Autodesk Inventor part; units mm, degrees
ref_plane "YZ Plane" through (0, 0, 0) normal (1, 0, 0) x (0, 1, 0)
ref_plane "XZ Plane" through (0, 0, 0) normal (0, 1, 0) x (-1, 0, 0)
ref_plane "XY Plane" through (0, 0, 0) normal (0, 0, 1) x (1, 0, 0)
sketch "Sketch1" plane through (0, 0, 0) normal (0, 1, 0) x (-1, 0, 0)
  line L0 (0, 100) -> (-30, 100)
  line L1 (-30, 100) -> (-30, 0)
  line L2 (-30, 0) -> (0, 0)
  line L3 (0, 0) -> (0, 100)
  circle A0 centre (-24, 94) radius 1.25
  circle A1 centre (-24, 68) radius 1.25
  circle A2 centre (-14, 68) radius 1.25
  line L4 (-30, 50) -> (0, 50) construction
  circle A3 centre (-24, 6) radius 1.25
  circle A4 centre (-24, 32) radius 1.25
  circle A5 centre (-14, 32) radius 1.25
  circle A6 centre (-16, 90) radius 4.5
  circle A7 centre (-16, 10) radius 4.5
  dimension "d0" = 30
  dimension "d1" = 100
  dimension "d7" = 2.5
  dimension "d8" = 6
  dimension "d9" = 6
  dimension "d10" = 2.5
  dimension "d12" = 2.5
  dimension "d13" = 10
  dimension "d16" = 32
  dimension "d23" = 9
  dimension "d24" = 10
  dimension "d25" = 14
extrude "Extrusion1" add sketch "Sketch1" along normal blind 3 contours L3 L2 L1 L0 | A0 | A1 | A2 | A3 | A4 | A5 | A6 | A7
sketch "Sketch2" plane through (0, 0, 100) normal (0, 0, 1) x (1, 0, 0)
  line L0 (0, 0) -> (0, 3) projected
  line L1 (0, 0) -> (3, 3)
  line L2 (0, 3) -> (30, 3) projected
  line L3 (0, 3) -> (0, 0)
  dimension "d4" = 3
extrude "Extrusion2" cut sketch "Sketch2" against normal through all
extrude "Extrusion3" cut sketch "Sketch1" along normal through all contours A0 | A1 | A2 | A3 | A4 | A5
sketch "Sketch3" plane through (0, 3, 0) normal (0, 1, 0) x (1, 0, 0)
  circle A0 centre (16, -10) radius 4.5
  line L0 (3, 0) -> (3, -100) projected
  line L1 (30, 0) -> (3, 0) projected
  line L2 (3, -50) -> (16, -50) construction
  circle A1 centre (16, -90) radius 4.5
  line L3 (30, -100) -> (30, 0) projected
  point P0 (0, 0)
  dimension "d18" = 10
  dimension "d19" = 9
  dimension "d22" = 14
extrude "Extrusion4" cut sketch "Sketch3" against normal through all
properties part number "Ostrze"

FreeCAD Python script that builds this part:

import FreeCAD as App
import Part
import Sketcher
Q = App.Units.Quantity


def add_polygon(sketch, points):
    """Adds a closed chain of lines whose ends are joined by coincident constraints."""
    first, n = sketch.GeometryCount, len(points)
    for a, b in zip(points, points[1:] + points[:1]):
        sketch.addGeometry(Part.LineSegment(App.Vector(*a, 0), App.Vector(*b, 0)), False)
    for i in range(n):
        sketch.addConstraint(Sketcher.Constraint("Coincident", first + i, 2, first + (i + 1) % n, 1))

doc = App.newDocument("Part")
body = doc.addObject("PartDesign::Body", "Body")

sketch1 = body.newObject("Sketcher::SketchObject", "Sketch")
sketch1.AttachmentSupport = (doc.getObject("XZ_Plane"), [""])
sketch1.MapMode = "FlatFace"
add_polygon(sketch1, [(0, 0), (0, 100), (30, 100), (30, 0)])
sketch1.addConstraint(Sketcher.Constraint("Vertical", 0))
sketch1.addConstraint(Sketcher.Constraint("Horizontal", 1))
sketch1.addConstraint(Sketcher.Constraint("Vertical", 2))
sketch1.addConstraint(Sketcher.Constraint("Horizontal", 3))
sketch1.addConstraint(Sketcher.Constraint("Coincident", 3, 2, -1, 1))
sketch1.addConstraint(Sketcher.Constraint("DistanceX", 1, 1, 1, 2, Q("30 mm")))
sketch1.addConstraint(Sketcher.Constraint("DistanceY", 0, 1, 0, 2, Q("100 mm")))
pad1 = body.newObject("PartDesign::Pad", "Pad")
pad1.Profile = sketch1
pad1.Length = 3
pad1.Reversed = True

sketch2 = body.newObject("Sketcher::SketchObject", "Sketch001")
sketch2.AttachmentSupport = (doc.getObject("XY_Plane"), [""])
sketch2.MapMode = "FlatFace"
sketch2.AttachmentOffset = App.Placement(App.Vector(0, 0, 100), App.Rotation())
add_polygon(sketch2, [(0, 3), (0, 0), (3, 3)])
sketch2.addConstraint(Sketcher.Constraint("Vertical", 0))
sketch2.addConstraint(Sketcher.Constraint("Horizontal", 2))
sketch2.addConstraint(Sketcher.Constraint("Coincident", 0, 2, -1, 1))
sketch2.addConstraint(Sketcher.Constraint("Equal", 2, 0))
sketch2.addConstraint(Sketcher.Constraint("DistanceX", 2, 2, 2, 1, Q("3 mm")))
pocket1 = body.newObject("PartDesign::Pocket", "Pocket")
pocket1.Profile = sketch2
pocket1.Type = "ThroughAll"

sketch3 = body.newObject("Sketcher::SketchObject", "Sketch002")
sketch3.AttachmentSupport = (doc.getObject("XZ_Plane"), [""])
sketch3.MapMode = "FlatFace"
sketch3.addGeometry(Part.Circle(App.Vector(24, 94, 0), App.Vector(0, 0, 1), 1.2), False)
sketch3.addGeometry(Part.Circle(App.Vector(24, 68, 0), App.Vector(0, 0, 1), 1.2), False)
sketch3.addGeometry(Part.Circle(App.Vector(14, 68, 0), App.Vector(0, 0, 1), 1.2), False)
sketch3.addGeometry(Part.Circle(App.Vector(24, 6, 0), App.Vector(0, 0, 1), 1.2), False)
sketch3.addGeometry(Part.Circle(App.Vector(24, 32, 0), App.Vector(0, 0, 1), 1.2), False)
sketch3.addGeometry(Part.Circle(App.Vector(14, 32, 0), App.Vector(0, 0, 1), 1.2), False)
sketch3.addConstraint(Sketcher.Constraint("Equal", 0, 1))
sketch3.addConstraint(Sketcher.Constraint("Equal", 1, 2))
sketch3.addConstraint(Sketcher.Constraint("Equal", 2, 3))
sketch3.addConstraint(Sketcher.Constraint("Equal", 3, 4))
sketch3.addConstraint(Sketcher.Constraint("Equal", 4, 5))
sketch3.addConstraint(Sketcher.Constraint("Horizontal", 1, 3, 2, 3))
sketch3.addConstraint(Sketcher.Constraint("Horizontal", 4, 3, 5, 3))
sketch3.addConstraint(Sketcher.Constraint("Vertical", 0, 3, 1, 3))
sketch3.addConstraint(Sketcher.Constraint("Vertical", 1, 3, 3, 3))
sketch3.addConstraint(Sketcher.Constraint("Vertical", 3, 3, 4, 3))
sketch3.addConstraint(Sketcher.Constraint("Vertical", 2, 3, 5, 3))
sketch3.addConstraint(Sketcher.Constraint("Diameter", 0, Q("2.5 mm")))
sketch3.addConstraint(Sketcher.Constraint("DistanceX", -1, 1, 2, 3, Q("14 mm")))
sketch3.addConstraint(Sketcher.Constraint("DistanceY", -1, 1, 3, 3, Q("6 mm")))
sketch3.addConstraint(Sketcher.Constraint("DistanceY", -1, 1, 4, 3, Q("32 mm")))
sketch3.addConstraint(Sketcher.Constraint("DistanceX", 2, 3, 1, 3, Q("10 mm")))
sketch3.addConstraint(Sketcher.Constraint("DistanceY", -1, 1, 0, 3, Q("94 mm")))
sketch3.addConstraint(Sketcher.Constraint("DistanceY", -1, 1, 1, 3, Q("68 mm")))
pocket2 = body.newObject("PartDesign::Pocket", "Pocket001")
pocket2.Profile = sketch3
pocket2.Type = "ThroughAll"

sketch4 = body.newObject("Sketcher::SketchObject", "Sketch003")
sketch4.AttachmentSupport = (doc.getObject("XZ_Plane"), [""])
sketch4.MapMode = "FlatFace"
sketch4.AttachmentOffset = App.Placement(App.Vector(0, 0, -3), App.Rotation())
sketch4.addGeometry(Part.Circle(App.Vector(16, 10, 0), App.Vector(0, 0, 1), 4.5), False)
sketch4.addGeometry(Part.Circle(App.Vector(16, 90, 0), App.Vector(0, 0, 1), 4.5), False)
sketch4.addConstraint(Sketcher.Constraint("Equal", 0, 1))
sketch4.addConstraint(Sketcher.Constraint("Vertical", 0, 3, 1, 3))
sketch4.addConstraint(Sketcher.Constraint("Diameter", 0, Q("9 mm")))
sketch4.addConstraint(Sketcher.Constraint("DistanceY", -1, 1, 0, 3, Q("10 mm")))
sketch4.addConstraint(Sketcher.Constraint("DistanceX", -1, 1, 0, 3, Q("16 mm")))
sketch4.addConstraint(Sketcher.Constraint("DistanceY", -1, 1, 1, 3, Q("90 mm")))
pocket3 = body.newObject("PartDesign::Pocket", "Pocket002")
pocket3.Profile = sketch4
pocket3.Type = "ThroughAll"
pocket3.Reversed = True

doc.recompute()
